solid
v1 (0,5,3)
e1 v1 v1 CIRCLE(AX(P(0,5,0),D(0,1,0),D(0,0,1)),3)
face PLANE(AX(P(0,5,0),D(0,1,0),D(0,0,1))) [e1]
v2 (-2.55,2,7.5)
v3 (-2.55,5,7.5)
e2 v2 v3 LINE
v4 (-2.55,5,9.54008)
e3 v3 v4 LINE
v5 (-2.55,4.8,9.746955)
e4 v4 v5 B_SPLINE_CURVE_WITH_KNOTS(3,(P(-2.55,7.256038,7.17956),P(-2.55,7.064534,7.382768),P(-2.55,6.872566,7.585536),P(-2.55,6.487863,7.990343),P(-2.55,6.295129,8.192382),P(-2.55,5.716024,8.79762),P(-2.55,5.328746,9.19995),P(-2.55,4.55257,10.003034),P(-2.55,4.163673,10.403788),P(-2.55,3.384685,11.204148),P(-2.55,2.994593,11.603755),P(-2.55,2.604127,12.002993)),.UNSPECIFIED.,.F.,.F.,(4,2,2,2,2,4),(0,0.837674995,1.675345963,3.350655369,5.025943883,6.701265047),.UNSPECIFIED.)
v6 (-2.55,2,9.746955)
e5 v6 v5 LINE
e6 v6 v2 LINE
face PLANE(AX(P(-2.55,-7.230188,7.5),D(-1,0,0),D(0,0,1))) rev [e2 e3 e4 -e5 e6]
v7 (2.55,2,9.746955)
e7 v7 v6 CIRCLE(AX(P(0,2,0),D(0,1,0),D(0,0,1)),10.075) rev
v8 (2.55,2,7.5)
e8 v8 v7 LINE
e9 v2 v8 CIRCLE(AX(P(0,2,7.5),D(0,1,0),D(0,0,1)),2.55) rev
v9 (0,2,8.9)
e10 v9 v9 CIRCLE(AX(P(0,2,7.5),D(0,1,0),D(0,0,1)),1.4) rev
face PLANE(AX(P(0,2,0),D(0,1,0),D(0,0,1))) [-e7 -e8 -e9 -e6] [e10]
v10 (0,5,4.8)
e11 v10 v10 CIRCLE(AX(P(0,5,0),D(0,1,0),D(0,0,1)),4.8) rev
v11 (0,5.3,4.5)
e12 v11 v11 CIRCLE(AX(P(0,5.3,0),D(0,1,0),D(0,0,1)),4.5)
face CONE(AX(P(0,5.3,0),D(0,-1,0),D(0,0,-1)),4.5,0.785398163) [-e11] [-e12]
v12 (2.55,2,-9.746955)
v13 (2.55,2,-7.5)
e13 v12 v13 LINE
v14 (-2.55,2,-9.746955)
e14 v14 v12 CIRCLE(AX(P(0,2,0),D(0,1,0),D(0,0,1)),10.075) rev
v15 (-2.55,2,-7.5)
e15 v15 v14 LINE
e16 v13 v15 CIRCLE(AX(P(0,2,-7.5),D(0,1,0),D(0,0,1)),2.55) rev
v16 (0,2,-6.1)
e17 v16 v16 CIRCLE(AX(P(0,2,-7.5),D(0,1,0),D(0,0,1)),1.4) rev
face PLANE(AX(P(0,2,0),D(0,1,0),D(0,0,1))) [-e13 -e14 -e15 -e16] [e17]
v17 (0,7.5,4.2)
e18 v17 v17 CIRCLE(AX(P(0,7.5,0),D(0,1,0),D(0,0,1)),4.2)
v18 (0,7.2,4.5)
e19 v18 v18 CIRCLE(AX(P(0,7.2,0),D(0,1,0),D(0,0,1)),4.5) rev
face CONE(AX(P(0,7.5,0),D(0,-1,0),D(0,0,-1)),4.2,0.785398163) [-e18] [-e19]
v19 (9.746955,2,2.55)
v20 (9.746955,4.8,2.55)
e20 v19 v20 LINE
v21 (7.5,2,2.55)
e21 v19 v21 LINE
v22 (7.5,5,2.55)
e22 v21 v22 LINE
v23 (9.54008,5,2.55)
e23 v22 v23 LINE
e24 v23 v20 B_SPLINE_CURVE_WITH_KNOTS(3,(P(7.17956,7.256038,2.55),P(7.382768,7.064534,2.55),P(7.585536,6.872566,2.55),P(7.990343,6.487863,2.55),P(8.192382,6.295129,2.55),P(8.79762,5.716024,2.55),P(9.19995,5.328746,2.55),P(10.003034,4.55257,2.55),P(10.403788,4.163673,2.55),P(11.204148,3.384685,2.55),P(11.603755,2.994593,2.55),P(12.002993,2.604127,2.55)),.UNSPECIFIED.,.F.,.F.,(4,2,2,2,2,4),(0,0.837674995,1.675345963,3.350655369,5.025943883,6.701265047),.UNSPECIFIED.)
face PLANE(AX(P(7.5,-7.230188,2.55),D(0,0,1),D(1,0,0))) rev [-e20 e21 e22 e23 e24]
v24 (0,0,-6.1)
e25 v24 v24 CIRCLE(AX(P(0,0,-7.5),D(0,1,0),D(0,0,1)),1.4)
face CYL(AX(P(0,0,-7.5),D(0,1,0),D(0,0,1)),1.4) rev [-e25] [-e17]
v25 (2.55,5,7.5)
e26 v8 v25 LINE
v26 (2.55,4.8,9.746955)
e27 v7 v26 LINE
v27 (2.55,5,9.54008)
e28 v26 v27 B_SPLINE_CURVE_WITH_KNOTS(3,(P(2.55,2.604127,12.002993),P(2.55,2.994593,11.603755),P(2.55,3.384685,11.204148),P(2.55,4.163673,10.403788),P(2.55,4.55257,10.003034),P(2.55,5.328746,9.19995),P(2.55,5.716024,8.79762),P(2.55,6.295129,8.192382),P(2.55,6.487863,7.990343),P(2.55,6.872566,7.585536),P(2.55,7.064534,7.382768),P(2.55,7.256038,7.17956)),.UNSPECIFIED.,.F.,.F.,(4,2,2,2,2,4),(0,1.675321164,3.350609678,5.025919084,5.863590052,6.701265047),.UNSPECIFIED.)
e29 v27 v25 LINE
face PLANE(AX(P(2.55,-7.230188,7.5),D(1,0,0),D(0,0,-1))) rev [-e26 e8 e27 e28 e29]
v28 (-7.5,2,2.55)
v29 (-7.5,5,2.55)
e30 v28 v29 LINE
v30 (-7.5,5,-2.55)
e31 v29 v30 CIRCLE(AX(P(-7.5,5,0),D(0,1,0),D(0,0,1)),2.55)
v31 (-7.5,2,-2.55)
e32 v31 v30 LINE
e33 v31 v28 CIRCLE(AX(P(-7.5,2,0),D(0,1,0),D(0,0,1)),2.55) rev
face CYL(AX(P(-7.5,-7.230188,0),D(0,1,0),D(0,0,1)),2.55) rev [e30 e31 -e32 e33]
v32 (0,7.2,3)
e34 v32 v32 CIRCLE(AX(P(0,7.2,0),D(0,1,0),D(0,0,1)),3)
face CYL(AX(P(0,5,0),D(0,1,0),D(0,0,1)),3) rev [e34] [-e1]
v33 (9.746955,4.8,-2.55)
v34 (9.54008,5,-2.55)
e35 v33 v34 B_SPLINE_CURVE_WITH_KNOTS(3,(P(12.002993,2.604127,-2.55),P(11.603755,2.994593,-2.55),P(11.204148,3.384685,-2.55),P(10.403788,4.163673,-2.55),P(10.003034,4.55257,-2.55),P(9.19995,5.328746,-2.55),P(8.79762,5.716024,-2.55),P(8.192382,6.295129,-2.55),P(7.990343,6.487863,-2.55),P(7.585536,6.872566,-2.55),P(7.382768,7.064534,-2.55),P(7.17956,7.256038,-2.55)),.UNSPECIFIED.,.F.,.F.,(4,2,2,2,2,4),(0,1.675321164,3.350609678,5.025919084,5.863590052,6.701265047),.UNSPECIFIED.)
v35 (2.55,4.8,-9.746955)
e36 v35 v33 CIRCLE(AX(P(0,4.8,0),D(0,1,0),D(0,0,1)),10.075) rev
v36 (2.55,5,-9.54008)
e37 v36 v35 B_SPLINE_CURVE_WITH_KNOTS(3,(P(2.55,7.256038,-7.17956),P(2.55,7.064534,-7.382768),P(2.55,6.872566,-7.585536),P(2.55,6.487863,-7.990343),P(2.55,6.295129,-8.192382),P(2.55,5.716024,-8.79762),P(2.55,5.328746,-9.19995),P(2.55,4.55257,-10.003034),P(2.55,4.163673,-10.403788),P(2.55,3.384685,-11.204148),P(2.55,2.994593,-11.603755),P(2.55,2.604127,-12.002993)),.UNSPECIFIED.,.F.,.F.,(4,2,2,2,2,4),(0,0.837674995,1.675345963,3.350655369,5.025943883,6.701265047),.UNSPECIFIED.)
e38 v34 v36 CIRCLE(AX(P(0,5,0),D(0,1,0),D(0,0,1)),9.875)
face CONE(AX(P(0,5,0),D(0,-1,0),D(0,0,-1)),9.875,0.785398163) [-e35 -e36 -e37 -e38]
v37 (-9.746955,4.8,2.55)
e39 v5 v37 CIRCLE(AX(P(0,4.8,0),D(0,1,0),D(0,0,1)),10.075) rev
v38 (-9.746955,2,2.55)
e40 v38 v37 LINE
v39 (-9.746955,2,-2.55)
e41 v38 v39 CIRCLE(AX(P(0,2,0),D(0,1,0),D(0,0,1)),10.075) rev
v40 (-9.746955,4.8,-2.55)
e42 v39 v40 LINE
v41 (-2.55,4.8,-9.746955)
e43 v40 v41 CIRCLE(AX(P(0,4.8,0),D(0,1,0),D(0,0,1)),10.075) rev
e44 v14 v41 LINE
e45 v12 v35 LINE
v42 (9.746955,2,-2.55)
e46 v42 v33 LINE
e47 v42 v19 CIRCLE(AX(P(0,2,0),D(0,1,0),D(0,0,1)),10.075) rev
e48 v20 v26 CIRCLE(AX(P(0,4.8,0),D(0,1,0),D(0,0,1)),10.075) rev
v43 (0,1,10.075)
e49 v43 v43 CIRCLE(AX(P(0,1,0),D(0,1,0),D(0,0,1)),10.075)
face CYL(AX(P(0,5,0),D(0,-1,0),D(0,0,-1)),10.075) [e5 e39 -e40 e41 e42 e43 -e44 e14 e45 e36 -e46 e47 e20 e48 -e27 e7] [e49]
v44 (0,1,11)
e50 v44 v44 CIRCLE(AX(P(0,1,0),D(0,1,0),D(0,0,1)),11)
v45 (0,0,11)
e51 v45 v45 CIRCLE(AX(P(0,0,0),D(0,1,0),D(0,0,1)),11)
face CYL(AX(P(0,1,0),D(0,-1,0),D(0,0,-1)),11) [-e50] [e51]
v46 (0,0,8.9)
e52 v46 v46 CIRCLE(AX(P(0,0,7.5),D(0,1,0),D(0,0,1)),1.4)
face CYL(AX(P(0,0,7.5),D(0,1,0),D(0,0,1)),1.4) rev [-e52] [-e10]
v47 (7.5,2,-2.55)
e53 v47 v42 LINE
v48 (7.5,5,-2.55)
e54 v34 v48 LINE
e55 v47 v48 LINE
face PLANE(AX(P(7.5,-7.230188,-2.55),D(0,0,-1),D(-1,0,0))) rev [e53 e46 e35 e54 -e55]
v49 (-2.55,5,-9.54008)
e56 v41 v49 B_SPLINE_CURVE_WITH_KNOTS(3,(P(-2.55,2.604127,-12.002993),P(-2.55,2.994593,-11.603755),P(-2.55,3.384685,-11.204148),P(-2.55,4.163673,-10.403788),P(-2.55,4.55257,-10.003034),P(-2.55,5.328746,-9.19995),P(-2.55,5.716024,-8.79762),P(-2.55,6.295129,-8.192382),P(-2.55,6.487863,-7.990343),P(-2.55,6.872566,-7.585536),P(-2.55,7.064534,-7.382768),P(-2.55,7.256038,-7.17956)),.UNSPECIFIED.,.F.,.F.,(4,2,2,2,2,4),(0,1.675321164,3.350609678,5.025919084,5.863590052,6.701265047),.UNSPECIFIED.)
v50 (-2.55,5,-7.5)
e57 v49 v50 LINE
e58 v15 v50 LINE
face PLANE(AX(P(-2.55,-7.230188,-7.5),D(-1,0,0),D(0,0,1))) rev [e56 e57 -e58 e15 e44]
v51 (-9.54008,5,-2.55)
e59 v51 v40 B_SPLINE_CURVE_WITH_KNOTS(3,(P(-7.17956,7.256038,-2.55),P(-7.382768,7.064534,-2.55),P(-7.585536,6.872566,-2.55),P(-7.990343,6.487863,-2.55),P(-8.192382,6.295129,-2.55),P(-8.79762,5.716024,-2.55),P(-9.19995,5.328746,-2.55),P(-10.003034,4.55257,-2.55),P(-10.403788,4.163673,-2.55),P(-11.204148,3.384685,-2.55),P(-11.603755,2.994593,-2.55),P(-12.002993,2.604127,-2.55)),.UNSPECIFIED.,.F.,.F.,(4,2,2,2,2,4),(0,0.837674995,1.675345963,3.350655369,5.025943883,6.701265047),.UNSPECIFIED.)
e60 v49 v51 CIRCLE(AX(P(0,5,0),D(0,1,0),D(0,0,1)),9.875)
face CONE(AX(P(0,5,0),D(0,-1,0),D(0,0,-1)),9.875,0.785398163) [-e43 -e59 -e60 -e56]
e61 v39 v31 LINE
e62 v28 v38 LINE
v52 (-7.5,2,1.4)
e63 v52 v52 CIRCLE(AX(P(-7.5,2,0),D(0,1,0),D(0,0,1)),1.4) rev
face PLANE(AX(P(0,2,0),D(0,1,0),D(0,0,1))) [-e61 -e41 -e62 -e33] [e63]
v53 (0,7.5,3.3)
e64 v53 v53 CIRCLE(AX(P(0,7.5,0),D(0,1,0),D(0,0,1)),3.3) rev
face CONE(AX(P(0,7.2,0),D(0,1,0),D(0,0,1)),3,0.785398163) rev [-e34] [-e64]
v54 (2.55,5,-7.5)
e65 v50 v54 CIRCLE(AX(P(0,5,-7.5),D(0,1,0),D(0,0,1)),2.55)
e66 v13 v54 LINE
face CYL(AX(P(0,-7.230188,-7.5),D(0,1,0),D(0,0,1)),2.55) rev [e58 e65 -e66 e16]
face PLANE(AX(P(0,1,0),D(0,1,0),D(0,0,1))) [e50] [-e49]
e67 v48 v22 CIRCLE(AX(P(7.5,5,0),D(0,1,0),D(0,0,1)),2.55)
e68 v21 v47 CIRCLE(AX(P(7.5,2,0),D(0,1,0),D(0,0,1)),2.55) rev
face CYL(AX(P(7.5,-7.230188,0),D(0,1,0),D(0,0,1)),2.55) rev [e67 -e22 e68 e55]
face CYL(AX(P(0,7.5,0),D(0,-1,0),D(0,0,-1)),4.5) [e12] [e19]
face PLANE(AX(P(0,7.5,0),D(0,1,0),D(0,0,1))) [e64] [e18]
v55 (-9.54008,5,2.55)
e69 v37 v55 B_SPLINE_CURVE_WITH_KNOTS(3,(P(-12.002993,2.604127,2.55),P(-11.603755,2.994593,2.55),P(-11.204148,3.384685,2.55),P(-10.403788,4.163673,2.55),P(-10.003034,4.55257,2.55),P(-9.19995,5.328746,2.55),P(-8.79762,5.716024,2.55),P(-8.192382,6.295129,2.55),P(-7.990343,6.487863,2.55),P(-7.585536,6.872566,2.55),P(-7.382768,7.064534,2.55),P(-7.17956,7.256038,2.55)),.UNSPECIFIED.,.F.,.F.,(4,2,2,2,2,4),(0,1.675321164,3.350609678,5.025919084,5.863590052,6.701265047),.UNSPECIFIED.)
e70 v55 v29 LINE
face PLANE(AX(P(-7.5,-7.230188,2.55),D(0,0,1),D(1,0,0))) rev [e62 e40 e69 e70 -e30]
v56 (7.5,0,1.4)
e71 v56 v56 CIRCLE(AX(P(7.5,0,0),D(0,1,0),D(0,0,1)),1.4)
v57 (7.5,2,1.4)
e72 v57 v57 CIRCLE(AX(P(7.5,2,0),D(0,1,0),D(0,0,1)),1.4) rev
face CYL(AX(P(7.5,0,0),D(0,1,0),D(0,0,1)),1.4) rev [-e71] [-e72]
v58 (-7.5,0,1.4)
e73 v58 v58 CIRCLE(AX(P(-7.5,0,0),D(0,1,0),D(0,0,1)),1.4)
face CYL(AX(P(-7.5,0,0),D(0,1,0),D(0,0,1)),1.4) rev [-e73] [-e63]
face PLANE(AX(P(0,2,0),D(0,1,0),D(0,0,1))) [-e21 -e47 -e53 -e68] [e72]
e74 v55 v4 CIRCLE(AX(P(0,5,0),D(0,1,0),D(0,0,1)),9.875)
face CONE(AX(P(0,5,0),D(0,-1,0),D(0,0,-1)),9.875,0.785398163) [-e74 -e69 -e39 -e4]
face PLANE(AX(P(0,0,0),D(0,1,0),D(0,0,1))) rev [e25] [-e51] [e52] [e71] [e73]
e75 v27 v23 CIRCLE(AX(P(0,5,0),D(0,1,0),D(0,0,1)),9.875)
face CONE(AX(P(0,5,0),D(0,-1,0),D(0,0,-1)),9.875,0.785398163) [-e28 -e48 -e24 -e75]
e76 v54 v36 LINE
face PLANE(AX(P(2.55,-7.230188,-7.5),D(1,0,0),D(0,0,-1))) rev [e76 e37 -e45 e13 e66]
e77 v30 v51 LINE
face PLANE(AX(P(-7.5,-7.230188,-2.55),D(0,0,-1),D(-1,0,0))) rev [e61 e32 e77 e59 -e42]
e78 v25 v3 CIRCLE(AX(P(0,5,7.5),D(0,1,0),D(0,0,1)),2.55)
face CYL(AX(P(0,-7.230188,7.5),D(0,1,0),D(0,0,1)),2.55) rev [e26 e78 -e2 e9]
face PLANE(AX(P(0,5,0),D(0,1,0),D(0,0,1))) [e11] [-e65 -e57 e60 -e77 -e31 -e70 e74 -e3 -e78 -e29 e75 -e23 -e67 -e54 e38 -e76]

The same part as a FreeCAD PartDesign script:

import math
import FreeCAD as App
import Part
import Sketcher

V = App.Vector


def edges_at(feature, points):
    """Names of the edges that pass closest to the given points."""
    edges = feature.Shape.Edges
    near = lambda p: min(range(len(edges)), key=lambda i: edges[i].distToShape(Part.Vertex(*p))[0])
    return sorted({f"Edge{near(p) + 1}" for p in points})

doc = App.newDocument("Part")
body = doc.addObject("PartDesign::Body", "Body")

sketch1 = doc.addObject("Sketcher::SketchObject", "Sketch")
body.addObject(sketch1)
sketch1.AttachmentSupport = (doc.XZ_Plane, [""])
sketch1.MapMode = "FlatFace"
sketch1.addGeometry(Part.Circle(V(0, 0, 0), V(0, 0, 1), 11), False)
sketch1.addConstraint([
    Sketcher.Constraint("Coincident", 0, 3, -1, 1),
    Sketcher.Constraint("Diameter", 0, 22.0),
])
pad1 = doc.addObject("PartDesign::Pad", "Pad")
body.addObject(pad1)
pad1.Profile = sketch1
pad1.Length = 1
pad1.Reversed = True

sketch2 = doc.addObject("Sketcher::SketchObject", "Sketch001")
body.addObject(sketch2)
sketch2.AttachmentSupport = (doc.XZ_Plane, [""])
sketch2.MapMode = "FlatFace"
sketch2.AttachmentOffset = App.Placement(V(0, 0, -1), App.Rotation())
sketch2.addGeometry(Part.Circle(V(0, 0, 0), V(0, 0, 1), 10), False)
sketch2.addConstraint([
    Sketcher.Constraint("Coincident", 0, 3, -1, 1),
    Sketcher.Constraint("Diameter", 0, 20.15),
])
pad2 = doc.addObject("PartDesign::Pad", "Pad001")
body.addObject(pad2)
pad2.Profile = sketch2
pad2.Length = 4
pad2.Reversed = True
doc.recompute()

chamfer = doc.addObject("PartDesign::Chamfer", "Chamfer")
body.addObject(chamfer)
chamfer.Base = (pad2, edges_at(pad2, [(-10.075, 5, 0)]))
chamfer.Size = 0.2

sketch3 = doc.addObject("Sketcher::SketchObject", "Sketch002")
body.addObject(sketch3)
sketch3.AttachmentSupport = (doc.XZ_Plane, [""])
sketch3.MapMode = "FlatFace"
sketch3.AttachmentOffset = App.Placement(V(0, 0, -5), App.Rotation())
sketch3.addGeometry([
    Part.Circle(V(0, -7.5, 0), V(0, 0, 1), 1.4),
    Part.Circle(V(7.5, 0, 0), V(0, 0, 1), 1.4),
    Part.Circle(V(0, 7.5, 0), V(0, 0, 1), 1.4),
    Part.Circle(V(-7.5, 0, 0), V(0, 0, 1), 1.4),
], False)
sketch3.addConstraint([
    Sketcher.Constraint("Equal", 0, 1),
    Sketcher.Constraint("Equal", 1, 2),
    Sketcher.Constraint("Equal", 2, 3),
    Sketcher.Constraint("Symmetric", 0, 3, 2, 3, -1, 1),
    Sketcher.Constraint("Symmetric", 1, 3, 3, 3, -1, 1),
    Sketcher.Constraint("PointOnObject", 0, 3, -2),
    Sketcher.Constraint("PointOnObject", 1, 3, -1),
    Sketcher.Constraint("Diameter", 0, 2.8),
    Sketcher.Constraint("DistanceY", 0, 3, 2, 3, 15.0),
    Sketcher.Constraint("DistanceX", 3, 3, 1, 3, 15.0),
])
pocket1 = doc.addObject("PartDesign::Pocket", "Pocket")
body.addObject(pocket1)
pocket1.Profile = sketch3
pocket1.Type = "ThroughAll"
pocket1.Reversed = True

sketch4 = doc.addObject("Sketcher::SketchObject", "Sketch003")
body.addObject(sketch4)
sketch4.AttachmentSupport = (doc.XZ_Plane, [""])
sketch4.MapMode = "FlatFace"
sketch4.AttachmentOffset = App.Placement(V(0, 0, -5), App.Rotation())
sketch4.addGeometry([
    Part.LineSegment(V(-2.5, -9.7, 0), V(-2.5, -7.5, 0)),
    Part.ArcOfCircle(Part.Circle(V(0, -7.5, 0), V(0, 0, 1), 2.5), math.radians(0), math.radians(180)),
    Part.LineSegment(V(2.5, -7.5, 0), V(2.5, -9.7, 0)),
    Part.ArcOfCircle(Part.Circle(V(0, 0, 0), V(0, 0, 1), 10.1), math.radians(-105), math.radians(-75)),
    Part.LineSegment(V(7.5, 2.5, 0), V(9.7, 2.5, 0)),
    Part.ArcOfCircle(Part.Circle(V(0, 0, 0), V(0, 0, 1), 10.1), math.radians(-15), math.radians(15)),
    Part.LineSegment(V(9.7, -2.5, 0), V(7.5, -2.5, 0)),
    Part.ArcOfCircle(Part.Circle(V(7.5, 0, 0), V(0, 0, 1), 2.5), math.radians(90), math.radians(270)),
    Part.LineSegment(V(-2.5, 7.5, 0), V(-2.5, 9.7, 0)),
    Part.ArcOfCircle(Part.Circle(V(0, 0, 0), V(0, 0, 1), 10.1), math.radians(75), math.radians(105)),
    Part.LineSegment(V(2.5, 9.7, 0), V(2.5, 7.5, 0)),
    Part.ArcOfCircle(Part.Circle(V(0, 7.5, 0), V(0, 0, 1), 2.5), math.radians(180), math.radians(360)),
    Part.LineSegment(V(-7.5, -2.5, 0), V(-9.7, -2.5, 0)),
    Part.ArcOfCircle(Part.Circle(V(0, 0, 0), V(0, 0, 1), 10.1), math.radians(165), math.radians(195)),
    Part.LineSegment(V(-9.7, 2.5, 0), V(-7.5, 2.5, 0)),
    Part.ArcOfCircle(Part.Circle(V(-7.5, 0, 0), V(0, 0, 1), 2.5), math.radians(-90), math.radians(90)),
], False)
sketch4.addConstraint([
    Sketcher.Constraint("Tangent", 0, 2, 1, 2),
    Sketcher.Constraint("Tangent", 1, 1, 2, 1),
    Sketcher.Constraint("Coincident", 2, 2, 3, 2),
    Sketcher.Constraint("Coincident", 3, 1, 0, 1),
    Sketcher.Constraint("Coincident", 4, 2, 5, 2),
    Sketcher.Constraint("Coincident", 5, 1, 6, 1),
    Sketcher.Constraint("Tangent", 6, 2, 7, 2),
    Sketcher.Constraint("Tangent", 7, 1, 4, 1),
    Sketcher.Constraint("Coincident", 8, 2, 9, 2),
    Sketcher.Constraint("Coincident", 9, 1, 10, 1),
    Sketcher.Constraint("Tangent", 10, 2, 11, 2),
    Sketcher.Constraint("Tangent", 11, 1, 8, 1),
    Sketcher.Constraint("Coincident", 12, 2, 13, 2),
    Sketcher.Constraint("Coincident", 13, 1, 14, 1),
    Sketcher.Constraint("Tangent", 14, 2, 15, 2),
    Sketcher.Constraint("Tangent", 15, 1, 12, 1),
    Sketcher.Constraint("Vertical", 0),
    Sketcher.Constraint("Vertical", 2),
    Sketcher.Constraint("Horizontal", 4),
    Sketcher.Constraint("Horizontal", 6),
    Sketcher.Constraint("Vertical", 8),
    Sketcher.Constraint("Vertical", 10),
    Sketcher.Constraint("Horizontal", 12),
    Sketcher.Constraint("Horizontal", 14),
    Sketcher.Constraint("Coincident", 3, 3, -1, 1),
    Sketcher.Constraint("Coincident", 5, 3, -1, 1),
    Sketcher.Constraint("Coincident", 9, 3, -1, 1),
    Sketcher.Constraint("Coincident", 13, 3, -1, 1),
    Sketcher.Constraint("Equal", 3, 5),
    Sketcher.Constraint("Equal", 1, 7),
    Sketcher.Constraint("Equal", 5, 9),
    Sketcher.Constraint("Equal", 7, 11),
    Sketcher.Constraint("Equal", 9, 13),
    Sketcher.Constraint("Equal", 11, 15),
    Sketcher.Constraint("Symmetric", 1, 3, 11, 3, -1, 1),
    Sketcher.Constraint("Symmetric", 7, 3, 15, 3, -1, 1),
    Sketcher.Constraint("PointOnObject", 1, 3, -2),
    Sketcher.Constraint("PointOnObject", 7, 3, -1),
    Sketcher.Constraint("Equal", 14, 0),
    Sketcher.Constraint("Radius", 1, 2.55),
    Sketcher.Constraint("Radius", 3, 10.075),
    Sketcher.Constraint("DistanceY", 1, 3, 11, 3, 15.0),
])
pocket2 = doc.addObject("PartDesign::Pocket", "Pocket001")
body.addObject(pocket2)
pocket2.Profile = sketch4
pocket2.Length = 3
pocket2.Reversed = True

sketch5 = doc.addObject("Sketcher::SketchObject", "Sketch004")
body.addObject(sketch5)
sketch5.AttachmentSupport = (doc.XZ_Plane, [""])
sketch5.MapMode = "FlatFace"
sketch5.AttachmentOffset = App.Placement(V(0, 0, -5), App.Rotation())
sketch5.addGeometry(Part.Circle(V(0, 0, 0), V(0, 0, 1), 4.5), False)
sketch5.addConstraint([
    Sketcher.Constraint("Coincident", 0, 3, -1, 1),
    Sketcher.Constraint("Diameter", 0, 9.0),
])
pad3 = doc.addObject("PartDesign::Pad", "Pad002")
body.addObject(pad3)
pad3.Profile = sketch5
pad3.Length = 2.5
pad3.Reversed = True

sketch6 = doc.addObject("Sketcher::SketchObject", "Sketch005")
body.addObject(sketch6)
sketch6.AttachmentSupport = (doc.XZ_Plane, [""])
sketch6.MapMode = "FlatFace"
sketch6.AttachmentOffset = App.Placement(V(0, 0, -7.5), App.Rotation())
sketch6.addGeometry(Part.Circle(V(0, 0, 0), V(0, 0, 1), 3), False)
sketch6.addConstraint([
    Sketcher.Constraint("Coincident", 0, 3, -1, 1),
    Sketcher.Constraint("Diameter", 0, 6.0),
])
pocket3 = doc.addObject("PartDesign::Pocket", "Pocket002")
body.addObject(pocket3)
pocket3.Profile = sketch6
pocket3.Length = 2.5
pocket3.Reversed = True
doc.recompute()

chamfer2 = doc.addObject("PartDesign::Chamfer", "Chamfer001")
body.addObject(chamfer2)
chamfer2.Base = (pocket3, edges_at(pocket3, [(-4.5, 5, 0), (-4.5, 7.5, 0), (-3, 7.5, 0)]))
chamfer2.Size = 0.3

doc.recompute()
